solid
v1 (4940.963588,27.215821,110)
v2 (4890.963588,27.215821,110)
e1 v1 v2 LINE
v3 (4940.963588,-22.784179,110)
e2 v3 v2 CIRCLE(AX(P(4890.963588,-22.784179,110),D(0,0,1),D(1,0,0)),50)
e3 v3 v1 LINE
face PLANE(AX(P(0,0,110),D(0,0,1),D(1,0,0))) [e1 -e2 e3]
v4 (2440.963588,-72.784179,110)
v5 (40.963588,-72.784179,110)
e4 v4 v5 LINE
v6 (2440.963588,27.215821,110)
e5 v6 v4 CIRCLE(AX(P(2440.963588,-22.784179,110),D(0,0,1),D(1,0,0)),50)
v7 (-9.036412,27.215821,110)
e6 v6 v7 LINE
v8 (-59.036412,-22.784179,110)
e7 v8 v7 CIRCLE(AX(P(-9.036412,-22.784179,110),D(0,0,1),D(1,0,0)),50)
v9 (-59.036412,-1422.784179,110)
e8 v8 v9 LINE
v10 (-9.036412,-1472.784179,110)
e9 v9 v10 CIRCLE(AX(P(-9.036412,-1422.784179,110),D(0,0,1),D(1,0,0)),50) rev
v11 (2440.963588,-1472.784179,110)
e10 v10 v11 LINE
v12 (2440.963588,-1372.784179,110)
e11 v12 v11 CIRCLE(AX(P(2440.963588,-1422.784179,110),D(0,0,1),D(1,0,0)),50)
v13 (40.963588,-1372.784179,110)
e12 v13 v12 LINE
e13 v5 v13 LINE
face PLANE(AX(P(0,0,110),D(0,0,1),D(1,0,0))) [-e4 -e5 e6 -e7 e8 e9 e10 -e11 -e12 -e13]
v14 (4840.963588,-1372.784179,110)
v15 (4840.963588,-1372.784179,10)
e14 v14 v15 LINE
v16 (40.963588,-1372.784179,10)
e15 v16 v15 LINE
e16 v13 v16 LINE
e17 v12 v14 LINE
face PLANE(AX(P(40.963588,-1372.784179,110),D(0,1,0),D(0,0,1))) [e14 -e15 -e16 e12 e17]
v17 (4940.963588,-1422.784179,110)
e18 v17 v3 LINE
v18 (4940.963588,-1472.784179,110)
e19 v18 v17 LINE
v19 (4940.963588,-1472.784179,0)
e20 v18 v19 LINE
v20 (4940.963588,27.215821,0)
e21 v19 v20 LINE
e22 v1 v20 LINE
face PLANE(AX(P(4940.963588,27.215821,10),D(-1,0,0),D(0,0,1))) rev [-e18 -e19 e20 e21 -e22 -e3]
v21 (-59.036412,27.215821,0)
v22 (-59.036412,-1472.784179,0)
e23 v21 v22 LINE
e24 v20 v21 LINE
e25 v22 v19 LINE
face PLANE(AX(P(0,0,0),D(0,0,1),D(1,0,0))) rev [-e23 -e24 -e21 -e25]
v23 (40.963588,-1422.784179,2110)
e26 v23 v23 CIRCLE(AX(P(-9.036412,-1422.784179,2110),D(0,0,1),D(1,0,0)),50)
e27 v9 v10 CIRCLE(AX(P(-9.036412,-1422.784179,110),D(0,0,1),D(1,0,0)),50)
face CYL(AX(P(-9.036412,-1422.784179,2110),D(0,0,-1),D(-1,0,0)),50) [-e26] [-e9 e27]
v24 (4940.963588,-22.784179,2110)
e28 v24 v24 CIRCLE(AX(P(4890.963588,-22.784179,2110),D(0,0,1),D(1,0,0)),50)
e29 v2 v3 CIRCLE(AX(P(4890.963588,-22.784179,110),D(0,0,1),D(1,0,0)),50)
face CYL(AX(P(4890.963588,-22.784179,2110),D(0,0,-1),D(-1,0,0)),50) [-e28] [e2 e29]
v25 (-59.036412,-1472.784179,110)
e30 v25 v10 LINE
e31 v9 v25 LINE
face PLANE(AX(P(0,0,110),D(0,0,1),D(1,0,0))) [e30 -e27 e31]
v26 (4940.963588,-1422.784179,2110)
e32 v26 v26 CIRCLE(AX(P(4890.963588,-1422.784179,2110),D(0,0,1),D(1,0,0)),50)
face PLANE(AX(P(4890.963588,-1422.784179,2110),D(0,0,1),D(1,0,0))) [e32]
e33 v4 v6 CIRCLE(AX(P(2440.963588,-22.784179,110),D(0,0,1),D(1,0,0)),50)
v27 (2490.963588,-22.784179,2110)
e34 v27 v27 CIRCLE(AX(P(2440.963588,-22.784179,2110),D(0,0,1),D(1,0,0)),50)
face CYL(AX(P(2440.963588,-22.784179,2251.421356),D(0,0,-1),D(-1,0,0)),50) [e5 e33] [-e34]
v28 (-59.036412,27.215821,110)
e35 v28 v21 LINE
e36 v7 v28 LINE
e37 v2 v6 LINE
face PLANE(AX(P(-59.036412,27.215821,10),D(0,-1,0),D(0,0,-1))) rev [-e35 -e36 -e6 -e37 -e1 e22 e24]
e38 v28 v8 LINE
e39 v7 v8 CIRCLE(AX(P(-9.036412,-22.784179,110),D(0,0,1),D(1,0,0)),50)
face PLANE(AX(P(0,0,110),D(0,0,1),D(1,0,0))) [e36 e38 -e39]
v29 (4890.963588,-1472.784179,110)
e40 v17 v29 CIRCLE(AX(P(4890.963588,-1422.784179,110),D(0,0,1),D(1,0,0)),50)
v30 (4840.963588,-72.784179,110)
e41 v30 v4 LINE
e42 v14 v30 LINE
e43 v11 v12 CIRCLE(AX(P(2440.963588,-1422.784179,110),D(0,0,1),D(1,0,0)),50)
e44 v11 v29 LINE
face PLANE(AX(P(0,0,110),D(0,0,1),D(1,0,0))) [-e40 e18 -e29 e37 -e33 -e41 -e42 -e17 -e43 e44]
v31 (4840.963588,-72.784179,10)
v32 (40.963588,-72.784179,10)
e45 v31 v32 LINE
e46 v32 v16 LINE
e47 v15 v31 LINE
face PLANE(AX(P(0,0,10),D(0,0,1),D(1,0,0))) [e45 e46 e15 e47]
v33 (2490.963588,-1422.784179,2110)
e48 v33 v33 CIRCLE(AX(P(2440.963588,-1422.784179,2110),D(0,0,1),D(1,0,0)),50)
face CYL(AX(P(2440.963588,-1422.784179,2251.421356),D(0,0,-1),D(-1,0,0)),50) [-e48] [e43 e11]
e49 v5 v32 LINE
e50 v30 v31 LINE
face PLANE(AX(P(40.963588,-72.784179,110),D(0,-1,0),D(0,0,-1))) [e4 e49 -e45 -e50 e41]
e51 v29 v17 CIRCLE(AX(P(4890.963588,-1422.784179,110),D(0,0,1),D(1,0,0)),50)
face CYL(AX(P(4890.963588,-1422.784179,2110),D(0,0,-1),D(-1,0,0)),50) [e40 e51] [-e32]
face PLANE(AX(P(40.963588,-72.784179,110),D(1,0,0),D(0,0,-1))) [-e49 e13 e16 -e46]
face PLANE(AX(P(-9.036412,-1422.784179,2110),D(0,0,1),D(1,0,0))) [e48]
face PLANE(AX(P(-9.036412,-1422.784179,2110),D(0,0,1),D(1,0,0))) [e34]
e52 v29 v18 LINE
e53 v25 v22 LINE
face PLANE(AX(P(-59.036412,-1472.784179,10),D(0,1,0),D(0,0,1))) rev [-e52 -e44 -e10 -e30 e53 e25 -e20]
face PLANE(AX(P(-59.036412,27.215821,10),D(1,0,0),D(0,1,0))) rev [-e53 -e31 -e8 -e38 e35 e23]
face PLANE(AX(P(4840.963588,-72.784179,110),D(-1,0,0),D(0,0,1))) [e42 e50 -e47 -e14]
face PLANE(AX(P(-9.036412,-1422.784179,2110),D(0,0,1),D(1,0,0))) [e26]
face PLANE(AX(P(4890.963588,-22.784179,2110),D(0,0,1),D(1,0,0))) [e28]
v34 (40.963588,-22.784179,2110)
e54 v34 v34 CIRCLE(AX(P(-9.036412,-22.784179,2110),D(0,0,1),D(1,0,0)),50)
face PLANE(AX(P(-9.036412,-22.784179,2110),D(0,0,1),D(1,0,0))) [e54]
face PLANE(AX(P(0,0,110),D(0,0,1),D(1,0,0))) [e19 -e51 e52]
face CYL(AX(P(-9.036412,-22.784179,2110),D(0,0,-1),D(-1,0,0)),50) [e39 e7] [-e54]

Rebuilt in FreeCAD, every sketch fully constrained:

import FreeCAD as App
import Part
import Sketcher

V = App.Vector

doc = App.newDocument("Part")
params = doc.addObject("Spreadsheet::Sheet", "Params")
for row, (alias, value) in enumerate([
    ("sketch1_width", "5000 mm"),
    ("sketch1_height", "1500 mm"),
    ("pad1_length", "10 mm"),
    ("sketch2_width", "5000 mm"),
    ("sketch2_width2", "4800 mm"),
    ("sketch2_height", "1500 mm"),
    ("sketch2_height2", "1300 mm"),
    ("pad2_length", "100 mm"),
    ("sketch3_diameter", "100 mm"),
    ("pad3_length", "2000 mm"),
    ("sketch4_diameter", "100 mm"),
    ("pad4_length", "2000 mm"),
], start=1):
    params.set(f"A{row}", alias)
    params.set(f"B{row}", "=" + value)
    params.setAlias(f"B{row}", alias)

body = doc.addObject("PartDesign::Body", "Body")

sketch1 = doc.addObject("Sketcher::SketchObject", "Sketch")
body.addObject(sketch1)
sketch1.AttachmentSupport = (doc.XY_Plane, [""])
sketch1.MapMode = "FlatFace"
sketch1.addGeometry([
    Part.LineSegment(V(-59, 27, 0), V(-59, -1473, 0)),
    Part.LineSegment(V(-59, -1473, 0), V(4941, -1473, 0)),
    Part.LineSegment(V(4941, -1473, 0), V(4941, 27, 0)),
    Part.LineSegment(V(4941, 27, 0), V(-59, 27, 0)),
], False)
sketch1.addConstraint([
    Sketcher.Constraint("Coincident", 0, 2, 1, 1),
    Sketcher.Constraint("Coincident", 1, 2, 2, 1),
    Sketcher.Constraint("Coincident", 2, 2, 3, 1),
    Sketcher.Constraint("Coincident", 3, 2, 0, 1),
    Sketcher.Constraint("Vertical", 0),
    Sketcher.Constraint("Horizontal", 1),
    Sketcher.Constraint("Vertical", 2),
    Sketcher.Constraint("Horizontal", 3),
    Sketcher.Constraint("DistanceX", 1, 1, 1, 2, 5000.0),
    Sketcher.Constraint("DistanceY", 0, 2, 0, 1, 1500.0),
    Sketcher.Constraint("DistanceY", 0, 2, -1, 1, 1472.784179),
    Sketcher.Constraint("DistanceX", 0, 2, -1, 1, 59.036412),
])
sketch1.setExpression("Constraints[8]", "Params.sketch1_width")
sketch1.setExpression("Constraints[9]", "Params.sketch1_height")
pad1 = doc.addObject("PartDesign::Pad", "Pad")
body.addObject(pad1)
pad1.Profile = sketch1
pad1.setExpression("Length", "Params.pad1_length")

sketch2 = doc.addObject("Sketcher::SketchObject", "Sketch001")
body.addObject(sketch2)
sketch2.AttachmentSupport = (doc.XY_Plane, [""])
sketch2.MapMode = "FlatFace"
sketch2.AttachmentOffset = App.Placement(V(0, 0, 10), App.Rotation())
sketch2.addGeometry([
    Part.LineSegment(V(-59, 27, 0), V(-59, -1473, 0)),
    Part.LineSegment(V(-59, -1473, 0), V(4941, -1473, 0)),
    Part.LineSegment(V(4941, -1473, 0), V(4941, 27, 0)),
    Part.LineSegment(V(4941, 27, 0), V(-59, 27, 0)),
    Part.LineSegment(V(4841, -1373, 0), V(41, -1373, 0)),
    Part.LineSegment(V(41, -1373, 0), V(41, -73, 0)),
    Part.LineSegment(V(41, -73, 0), V(4841, -73, 0)),
    Part.LineSegment(V(4841, -73, 0), V(4841, -1373, 0)),
], False)
sketch2.addConstraint([
    Sketcher.Constraint("Coincident", 0, 2, 1, 1),
    Sketcher.Constraint("Coincident", 1, 2, 2, 1),
    Sketcher.Constraint("Coincident", 2, 2, 3, 1),
    Sketcher.Constraint("Coincident", 3, 2, 0, 1),
    Sketcher.Constraint("Coincident", 4, 2, 5, 1),
    Sketcher.Constraint("Coincident", 5, 2, 6, 1),
    Sketcher.Constraint("Coincident", 6, 2, 7, 1),
    Sketcher.Constraint("Coincident", 7, 2, 4, 1),
    Sketcher.Constraint("Vertical", 0),
    Sketcher.Constraint("Horizontal", 1),
    Sketcher.Constraint("Vertical", 2),
    Sketcher.Constraint("Horizontal", 3),
    Sketcher.Constraint("Horizontal", 4),
    Sketcher.Constraint("Vertical", 5),
    Sketcher.Constraint("Horizontal", 6),
    Sketcher.Constraint("Vertical", 7),
    Sketcher.Constraint("DistanceX", 1, 1, 1, 2, 5000.0),
    Sketcher.Constraint("DistanceX", 4, 2, 4, 1, 4800.0),
    Sketcher.Constraint("DistanceY", 0, 2, 0, 1, 1500.0),
    Sketcher.Constraint("DistanceY", 5, 1, 5, 2, 1300.0),
    Sketcher.Constraint("DistanceX", 0, 2, 4, 2, 100.0),
    Sketcher.Constraint("DistanceY", 0, 2, 4, 2, 100.0),
    Sketcher.Constraint("DistanceY", 0, 2, -1, 1, 1472.784179),
    Sketcher.Constraint("DistanceX", 0, 2, -1, 1, 59.036412),
])
sketch2.setExpression("Constraints[16]", "Params.sketch2_width")
sketch2.setExpression("Constraints[17]", "Params.sketch2_width2")
sketch2.setExpression("Constraints[18]", "Params.sketch2_height")
sketch2.setExpression("Constraints[19]", "Params.sketch2_height2")
pad2 = doc.addObject("PartDesign::Pad", "Pad001")
body.addObject(pad2)
pad2.Profile = sketch2
pad2.setExpression("Length", "Params.pad2_length")

sketch3 = doc.addObject("Sketcher::SketchObject", "Sketch002")
body.addObject(sketch3)
sketch3.AttachmentSupport = (doc.XY_Plane, [""])
sketch3.MapMode = "FlatFace"
sketch3.AttachmentOffset = App.Placement(V(0, 0, 110), App.Rotation())
sketch3.addGeometry([
    Part.Circle(V(-9, -23, 0), V(0, 0, 1), 50),
    Part.Circle(V(-9, -1423, 0), V(0, 0, 1), 50),
    Part.Circle(V(4891, -1423, 0), V(0, 0, 1), 50),
    Part.Circle(V(4891, -23, 0), V(0, 0, 1), 50),
], False)
sketch3.addConstraint([
    Sketcher.Constraint("Equal", 0, 1),
    Sketcher.Constraint("Equal", 1, 2),
    Sketcher.Constraint("Equal", 2, 3),
    Sketcher.Constraint("Horizontal", 1, 3, 2, 3),
    Sketcher.Constraint("Horizontal", 0, 3, 3, 3),
    Sketcher.Constraint("Vertical", 0, 3, 1, 3),
    Sketcher.Constraint("Vertical", 2, 3, 3, 3),
    Sketcher.Constraint("Diameter", 0, 100.0),
    Sketcher.Constraint("DistanceY", 1, 3, 0, 3, 1400.0),
    Sketcher.Constraint("DistanceX", 1, 3, 2, 3, 4900.0),
    Sketcher.Constraint("DistanceY", 0, 3, -1, 1, 22.784179),
    Sketcher.Constraint("DistanceX", 0, 3, -1, 1, 9.036412),
])
sketch3.setExpression("Constraints[7]", "Params.sketch3_diameter")
pad3 = doc.addObject("PartDesign::Pad", "Pad002")
body.addObject(pad3)
pad3.Profile = sketch3
pad3.setExpression("Length", "Params.pad3_length")

sketch4 = doc.addObject("Sketcher::SketchObject", "Sketch003")
body.addObject(sketch4)
sketch4.AttachmentSupport = (doc.XY_Plane, [""])
sketch4.MapMode = "FlatFace"
sketch4.AttachmentOffset = App.Placement(V(0, 0, 110), App.Rotation())
sketch4.addGeometry([
    Part.Circle(V(2441, -23, 0), V(0, 0, 1), 50),
    Part.Circle(V(2441, -1423, 0), V(0, 0, 1), 50),
], False)
sketch4.addConstraint([
    Sketcher.Constraint("Equal", 0, 1),
    Sketcher.Constraint("Vertical", 0, 3, 1, 3),
    Sketcher.Constraint("Diameter", 0, 100.0),
    Sketcher.Constraint("DistanceY", 1, 3, 0, 3, 1400.0),
    Sketcher.Constraint("DistanceY", 0, 3, -1, 1, 22.784179),
    Sketcher.Constraint("DistanceX", -1, 1, 0, 3, 2440.963588),
])
sketch4.setExpression("Constraints[2]", "Params.sketch4_diameter")
pad4 = doc.addObject("PartDesign::Pad", "Pad003")
body.addObject(pad4)
pad4.Profile = sketch4
pad4.setExpression("Length", "Params.pad4_length")

doc.recompute()
